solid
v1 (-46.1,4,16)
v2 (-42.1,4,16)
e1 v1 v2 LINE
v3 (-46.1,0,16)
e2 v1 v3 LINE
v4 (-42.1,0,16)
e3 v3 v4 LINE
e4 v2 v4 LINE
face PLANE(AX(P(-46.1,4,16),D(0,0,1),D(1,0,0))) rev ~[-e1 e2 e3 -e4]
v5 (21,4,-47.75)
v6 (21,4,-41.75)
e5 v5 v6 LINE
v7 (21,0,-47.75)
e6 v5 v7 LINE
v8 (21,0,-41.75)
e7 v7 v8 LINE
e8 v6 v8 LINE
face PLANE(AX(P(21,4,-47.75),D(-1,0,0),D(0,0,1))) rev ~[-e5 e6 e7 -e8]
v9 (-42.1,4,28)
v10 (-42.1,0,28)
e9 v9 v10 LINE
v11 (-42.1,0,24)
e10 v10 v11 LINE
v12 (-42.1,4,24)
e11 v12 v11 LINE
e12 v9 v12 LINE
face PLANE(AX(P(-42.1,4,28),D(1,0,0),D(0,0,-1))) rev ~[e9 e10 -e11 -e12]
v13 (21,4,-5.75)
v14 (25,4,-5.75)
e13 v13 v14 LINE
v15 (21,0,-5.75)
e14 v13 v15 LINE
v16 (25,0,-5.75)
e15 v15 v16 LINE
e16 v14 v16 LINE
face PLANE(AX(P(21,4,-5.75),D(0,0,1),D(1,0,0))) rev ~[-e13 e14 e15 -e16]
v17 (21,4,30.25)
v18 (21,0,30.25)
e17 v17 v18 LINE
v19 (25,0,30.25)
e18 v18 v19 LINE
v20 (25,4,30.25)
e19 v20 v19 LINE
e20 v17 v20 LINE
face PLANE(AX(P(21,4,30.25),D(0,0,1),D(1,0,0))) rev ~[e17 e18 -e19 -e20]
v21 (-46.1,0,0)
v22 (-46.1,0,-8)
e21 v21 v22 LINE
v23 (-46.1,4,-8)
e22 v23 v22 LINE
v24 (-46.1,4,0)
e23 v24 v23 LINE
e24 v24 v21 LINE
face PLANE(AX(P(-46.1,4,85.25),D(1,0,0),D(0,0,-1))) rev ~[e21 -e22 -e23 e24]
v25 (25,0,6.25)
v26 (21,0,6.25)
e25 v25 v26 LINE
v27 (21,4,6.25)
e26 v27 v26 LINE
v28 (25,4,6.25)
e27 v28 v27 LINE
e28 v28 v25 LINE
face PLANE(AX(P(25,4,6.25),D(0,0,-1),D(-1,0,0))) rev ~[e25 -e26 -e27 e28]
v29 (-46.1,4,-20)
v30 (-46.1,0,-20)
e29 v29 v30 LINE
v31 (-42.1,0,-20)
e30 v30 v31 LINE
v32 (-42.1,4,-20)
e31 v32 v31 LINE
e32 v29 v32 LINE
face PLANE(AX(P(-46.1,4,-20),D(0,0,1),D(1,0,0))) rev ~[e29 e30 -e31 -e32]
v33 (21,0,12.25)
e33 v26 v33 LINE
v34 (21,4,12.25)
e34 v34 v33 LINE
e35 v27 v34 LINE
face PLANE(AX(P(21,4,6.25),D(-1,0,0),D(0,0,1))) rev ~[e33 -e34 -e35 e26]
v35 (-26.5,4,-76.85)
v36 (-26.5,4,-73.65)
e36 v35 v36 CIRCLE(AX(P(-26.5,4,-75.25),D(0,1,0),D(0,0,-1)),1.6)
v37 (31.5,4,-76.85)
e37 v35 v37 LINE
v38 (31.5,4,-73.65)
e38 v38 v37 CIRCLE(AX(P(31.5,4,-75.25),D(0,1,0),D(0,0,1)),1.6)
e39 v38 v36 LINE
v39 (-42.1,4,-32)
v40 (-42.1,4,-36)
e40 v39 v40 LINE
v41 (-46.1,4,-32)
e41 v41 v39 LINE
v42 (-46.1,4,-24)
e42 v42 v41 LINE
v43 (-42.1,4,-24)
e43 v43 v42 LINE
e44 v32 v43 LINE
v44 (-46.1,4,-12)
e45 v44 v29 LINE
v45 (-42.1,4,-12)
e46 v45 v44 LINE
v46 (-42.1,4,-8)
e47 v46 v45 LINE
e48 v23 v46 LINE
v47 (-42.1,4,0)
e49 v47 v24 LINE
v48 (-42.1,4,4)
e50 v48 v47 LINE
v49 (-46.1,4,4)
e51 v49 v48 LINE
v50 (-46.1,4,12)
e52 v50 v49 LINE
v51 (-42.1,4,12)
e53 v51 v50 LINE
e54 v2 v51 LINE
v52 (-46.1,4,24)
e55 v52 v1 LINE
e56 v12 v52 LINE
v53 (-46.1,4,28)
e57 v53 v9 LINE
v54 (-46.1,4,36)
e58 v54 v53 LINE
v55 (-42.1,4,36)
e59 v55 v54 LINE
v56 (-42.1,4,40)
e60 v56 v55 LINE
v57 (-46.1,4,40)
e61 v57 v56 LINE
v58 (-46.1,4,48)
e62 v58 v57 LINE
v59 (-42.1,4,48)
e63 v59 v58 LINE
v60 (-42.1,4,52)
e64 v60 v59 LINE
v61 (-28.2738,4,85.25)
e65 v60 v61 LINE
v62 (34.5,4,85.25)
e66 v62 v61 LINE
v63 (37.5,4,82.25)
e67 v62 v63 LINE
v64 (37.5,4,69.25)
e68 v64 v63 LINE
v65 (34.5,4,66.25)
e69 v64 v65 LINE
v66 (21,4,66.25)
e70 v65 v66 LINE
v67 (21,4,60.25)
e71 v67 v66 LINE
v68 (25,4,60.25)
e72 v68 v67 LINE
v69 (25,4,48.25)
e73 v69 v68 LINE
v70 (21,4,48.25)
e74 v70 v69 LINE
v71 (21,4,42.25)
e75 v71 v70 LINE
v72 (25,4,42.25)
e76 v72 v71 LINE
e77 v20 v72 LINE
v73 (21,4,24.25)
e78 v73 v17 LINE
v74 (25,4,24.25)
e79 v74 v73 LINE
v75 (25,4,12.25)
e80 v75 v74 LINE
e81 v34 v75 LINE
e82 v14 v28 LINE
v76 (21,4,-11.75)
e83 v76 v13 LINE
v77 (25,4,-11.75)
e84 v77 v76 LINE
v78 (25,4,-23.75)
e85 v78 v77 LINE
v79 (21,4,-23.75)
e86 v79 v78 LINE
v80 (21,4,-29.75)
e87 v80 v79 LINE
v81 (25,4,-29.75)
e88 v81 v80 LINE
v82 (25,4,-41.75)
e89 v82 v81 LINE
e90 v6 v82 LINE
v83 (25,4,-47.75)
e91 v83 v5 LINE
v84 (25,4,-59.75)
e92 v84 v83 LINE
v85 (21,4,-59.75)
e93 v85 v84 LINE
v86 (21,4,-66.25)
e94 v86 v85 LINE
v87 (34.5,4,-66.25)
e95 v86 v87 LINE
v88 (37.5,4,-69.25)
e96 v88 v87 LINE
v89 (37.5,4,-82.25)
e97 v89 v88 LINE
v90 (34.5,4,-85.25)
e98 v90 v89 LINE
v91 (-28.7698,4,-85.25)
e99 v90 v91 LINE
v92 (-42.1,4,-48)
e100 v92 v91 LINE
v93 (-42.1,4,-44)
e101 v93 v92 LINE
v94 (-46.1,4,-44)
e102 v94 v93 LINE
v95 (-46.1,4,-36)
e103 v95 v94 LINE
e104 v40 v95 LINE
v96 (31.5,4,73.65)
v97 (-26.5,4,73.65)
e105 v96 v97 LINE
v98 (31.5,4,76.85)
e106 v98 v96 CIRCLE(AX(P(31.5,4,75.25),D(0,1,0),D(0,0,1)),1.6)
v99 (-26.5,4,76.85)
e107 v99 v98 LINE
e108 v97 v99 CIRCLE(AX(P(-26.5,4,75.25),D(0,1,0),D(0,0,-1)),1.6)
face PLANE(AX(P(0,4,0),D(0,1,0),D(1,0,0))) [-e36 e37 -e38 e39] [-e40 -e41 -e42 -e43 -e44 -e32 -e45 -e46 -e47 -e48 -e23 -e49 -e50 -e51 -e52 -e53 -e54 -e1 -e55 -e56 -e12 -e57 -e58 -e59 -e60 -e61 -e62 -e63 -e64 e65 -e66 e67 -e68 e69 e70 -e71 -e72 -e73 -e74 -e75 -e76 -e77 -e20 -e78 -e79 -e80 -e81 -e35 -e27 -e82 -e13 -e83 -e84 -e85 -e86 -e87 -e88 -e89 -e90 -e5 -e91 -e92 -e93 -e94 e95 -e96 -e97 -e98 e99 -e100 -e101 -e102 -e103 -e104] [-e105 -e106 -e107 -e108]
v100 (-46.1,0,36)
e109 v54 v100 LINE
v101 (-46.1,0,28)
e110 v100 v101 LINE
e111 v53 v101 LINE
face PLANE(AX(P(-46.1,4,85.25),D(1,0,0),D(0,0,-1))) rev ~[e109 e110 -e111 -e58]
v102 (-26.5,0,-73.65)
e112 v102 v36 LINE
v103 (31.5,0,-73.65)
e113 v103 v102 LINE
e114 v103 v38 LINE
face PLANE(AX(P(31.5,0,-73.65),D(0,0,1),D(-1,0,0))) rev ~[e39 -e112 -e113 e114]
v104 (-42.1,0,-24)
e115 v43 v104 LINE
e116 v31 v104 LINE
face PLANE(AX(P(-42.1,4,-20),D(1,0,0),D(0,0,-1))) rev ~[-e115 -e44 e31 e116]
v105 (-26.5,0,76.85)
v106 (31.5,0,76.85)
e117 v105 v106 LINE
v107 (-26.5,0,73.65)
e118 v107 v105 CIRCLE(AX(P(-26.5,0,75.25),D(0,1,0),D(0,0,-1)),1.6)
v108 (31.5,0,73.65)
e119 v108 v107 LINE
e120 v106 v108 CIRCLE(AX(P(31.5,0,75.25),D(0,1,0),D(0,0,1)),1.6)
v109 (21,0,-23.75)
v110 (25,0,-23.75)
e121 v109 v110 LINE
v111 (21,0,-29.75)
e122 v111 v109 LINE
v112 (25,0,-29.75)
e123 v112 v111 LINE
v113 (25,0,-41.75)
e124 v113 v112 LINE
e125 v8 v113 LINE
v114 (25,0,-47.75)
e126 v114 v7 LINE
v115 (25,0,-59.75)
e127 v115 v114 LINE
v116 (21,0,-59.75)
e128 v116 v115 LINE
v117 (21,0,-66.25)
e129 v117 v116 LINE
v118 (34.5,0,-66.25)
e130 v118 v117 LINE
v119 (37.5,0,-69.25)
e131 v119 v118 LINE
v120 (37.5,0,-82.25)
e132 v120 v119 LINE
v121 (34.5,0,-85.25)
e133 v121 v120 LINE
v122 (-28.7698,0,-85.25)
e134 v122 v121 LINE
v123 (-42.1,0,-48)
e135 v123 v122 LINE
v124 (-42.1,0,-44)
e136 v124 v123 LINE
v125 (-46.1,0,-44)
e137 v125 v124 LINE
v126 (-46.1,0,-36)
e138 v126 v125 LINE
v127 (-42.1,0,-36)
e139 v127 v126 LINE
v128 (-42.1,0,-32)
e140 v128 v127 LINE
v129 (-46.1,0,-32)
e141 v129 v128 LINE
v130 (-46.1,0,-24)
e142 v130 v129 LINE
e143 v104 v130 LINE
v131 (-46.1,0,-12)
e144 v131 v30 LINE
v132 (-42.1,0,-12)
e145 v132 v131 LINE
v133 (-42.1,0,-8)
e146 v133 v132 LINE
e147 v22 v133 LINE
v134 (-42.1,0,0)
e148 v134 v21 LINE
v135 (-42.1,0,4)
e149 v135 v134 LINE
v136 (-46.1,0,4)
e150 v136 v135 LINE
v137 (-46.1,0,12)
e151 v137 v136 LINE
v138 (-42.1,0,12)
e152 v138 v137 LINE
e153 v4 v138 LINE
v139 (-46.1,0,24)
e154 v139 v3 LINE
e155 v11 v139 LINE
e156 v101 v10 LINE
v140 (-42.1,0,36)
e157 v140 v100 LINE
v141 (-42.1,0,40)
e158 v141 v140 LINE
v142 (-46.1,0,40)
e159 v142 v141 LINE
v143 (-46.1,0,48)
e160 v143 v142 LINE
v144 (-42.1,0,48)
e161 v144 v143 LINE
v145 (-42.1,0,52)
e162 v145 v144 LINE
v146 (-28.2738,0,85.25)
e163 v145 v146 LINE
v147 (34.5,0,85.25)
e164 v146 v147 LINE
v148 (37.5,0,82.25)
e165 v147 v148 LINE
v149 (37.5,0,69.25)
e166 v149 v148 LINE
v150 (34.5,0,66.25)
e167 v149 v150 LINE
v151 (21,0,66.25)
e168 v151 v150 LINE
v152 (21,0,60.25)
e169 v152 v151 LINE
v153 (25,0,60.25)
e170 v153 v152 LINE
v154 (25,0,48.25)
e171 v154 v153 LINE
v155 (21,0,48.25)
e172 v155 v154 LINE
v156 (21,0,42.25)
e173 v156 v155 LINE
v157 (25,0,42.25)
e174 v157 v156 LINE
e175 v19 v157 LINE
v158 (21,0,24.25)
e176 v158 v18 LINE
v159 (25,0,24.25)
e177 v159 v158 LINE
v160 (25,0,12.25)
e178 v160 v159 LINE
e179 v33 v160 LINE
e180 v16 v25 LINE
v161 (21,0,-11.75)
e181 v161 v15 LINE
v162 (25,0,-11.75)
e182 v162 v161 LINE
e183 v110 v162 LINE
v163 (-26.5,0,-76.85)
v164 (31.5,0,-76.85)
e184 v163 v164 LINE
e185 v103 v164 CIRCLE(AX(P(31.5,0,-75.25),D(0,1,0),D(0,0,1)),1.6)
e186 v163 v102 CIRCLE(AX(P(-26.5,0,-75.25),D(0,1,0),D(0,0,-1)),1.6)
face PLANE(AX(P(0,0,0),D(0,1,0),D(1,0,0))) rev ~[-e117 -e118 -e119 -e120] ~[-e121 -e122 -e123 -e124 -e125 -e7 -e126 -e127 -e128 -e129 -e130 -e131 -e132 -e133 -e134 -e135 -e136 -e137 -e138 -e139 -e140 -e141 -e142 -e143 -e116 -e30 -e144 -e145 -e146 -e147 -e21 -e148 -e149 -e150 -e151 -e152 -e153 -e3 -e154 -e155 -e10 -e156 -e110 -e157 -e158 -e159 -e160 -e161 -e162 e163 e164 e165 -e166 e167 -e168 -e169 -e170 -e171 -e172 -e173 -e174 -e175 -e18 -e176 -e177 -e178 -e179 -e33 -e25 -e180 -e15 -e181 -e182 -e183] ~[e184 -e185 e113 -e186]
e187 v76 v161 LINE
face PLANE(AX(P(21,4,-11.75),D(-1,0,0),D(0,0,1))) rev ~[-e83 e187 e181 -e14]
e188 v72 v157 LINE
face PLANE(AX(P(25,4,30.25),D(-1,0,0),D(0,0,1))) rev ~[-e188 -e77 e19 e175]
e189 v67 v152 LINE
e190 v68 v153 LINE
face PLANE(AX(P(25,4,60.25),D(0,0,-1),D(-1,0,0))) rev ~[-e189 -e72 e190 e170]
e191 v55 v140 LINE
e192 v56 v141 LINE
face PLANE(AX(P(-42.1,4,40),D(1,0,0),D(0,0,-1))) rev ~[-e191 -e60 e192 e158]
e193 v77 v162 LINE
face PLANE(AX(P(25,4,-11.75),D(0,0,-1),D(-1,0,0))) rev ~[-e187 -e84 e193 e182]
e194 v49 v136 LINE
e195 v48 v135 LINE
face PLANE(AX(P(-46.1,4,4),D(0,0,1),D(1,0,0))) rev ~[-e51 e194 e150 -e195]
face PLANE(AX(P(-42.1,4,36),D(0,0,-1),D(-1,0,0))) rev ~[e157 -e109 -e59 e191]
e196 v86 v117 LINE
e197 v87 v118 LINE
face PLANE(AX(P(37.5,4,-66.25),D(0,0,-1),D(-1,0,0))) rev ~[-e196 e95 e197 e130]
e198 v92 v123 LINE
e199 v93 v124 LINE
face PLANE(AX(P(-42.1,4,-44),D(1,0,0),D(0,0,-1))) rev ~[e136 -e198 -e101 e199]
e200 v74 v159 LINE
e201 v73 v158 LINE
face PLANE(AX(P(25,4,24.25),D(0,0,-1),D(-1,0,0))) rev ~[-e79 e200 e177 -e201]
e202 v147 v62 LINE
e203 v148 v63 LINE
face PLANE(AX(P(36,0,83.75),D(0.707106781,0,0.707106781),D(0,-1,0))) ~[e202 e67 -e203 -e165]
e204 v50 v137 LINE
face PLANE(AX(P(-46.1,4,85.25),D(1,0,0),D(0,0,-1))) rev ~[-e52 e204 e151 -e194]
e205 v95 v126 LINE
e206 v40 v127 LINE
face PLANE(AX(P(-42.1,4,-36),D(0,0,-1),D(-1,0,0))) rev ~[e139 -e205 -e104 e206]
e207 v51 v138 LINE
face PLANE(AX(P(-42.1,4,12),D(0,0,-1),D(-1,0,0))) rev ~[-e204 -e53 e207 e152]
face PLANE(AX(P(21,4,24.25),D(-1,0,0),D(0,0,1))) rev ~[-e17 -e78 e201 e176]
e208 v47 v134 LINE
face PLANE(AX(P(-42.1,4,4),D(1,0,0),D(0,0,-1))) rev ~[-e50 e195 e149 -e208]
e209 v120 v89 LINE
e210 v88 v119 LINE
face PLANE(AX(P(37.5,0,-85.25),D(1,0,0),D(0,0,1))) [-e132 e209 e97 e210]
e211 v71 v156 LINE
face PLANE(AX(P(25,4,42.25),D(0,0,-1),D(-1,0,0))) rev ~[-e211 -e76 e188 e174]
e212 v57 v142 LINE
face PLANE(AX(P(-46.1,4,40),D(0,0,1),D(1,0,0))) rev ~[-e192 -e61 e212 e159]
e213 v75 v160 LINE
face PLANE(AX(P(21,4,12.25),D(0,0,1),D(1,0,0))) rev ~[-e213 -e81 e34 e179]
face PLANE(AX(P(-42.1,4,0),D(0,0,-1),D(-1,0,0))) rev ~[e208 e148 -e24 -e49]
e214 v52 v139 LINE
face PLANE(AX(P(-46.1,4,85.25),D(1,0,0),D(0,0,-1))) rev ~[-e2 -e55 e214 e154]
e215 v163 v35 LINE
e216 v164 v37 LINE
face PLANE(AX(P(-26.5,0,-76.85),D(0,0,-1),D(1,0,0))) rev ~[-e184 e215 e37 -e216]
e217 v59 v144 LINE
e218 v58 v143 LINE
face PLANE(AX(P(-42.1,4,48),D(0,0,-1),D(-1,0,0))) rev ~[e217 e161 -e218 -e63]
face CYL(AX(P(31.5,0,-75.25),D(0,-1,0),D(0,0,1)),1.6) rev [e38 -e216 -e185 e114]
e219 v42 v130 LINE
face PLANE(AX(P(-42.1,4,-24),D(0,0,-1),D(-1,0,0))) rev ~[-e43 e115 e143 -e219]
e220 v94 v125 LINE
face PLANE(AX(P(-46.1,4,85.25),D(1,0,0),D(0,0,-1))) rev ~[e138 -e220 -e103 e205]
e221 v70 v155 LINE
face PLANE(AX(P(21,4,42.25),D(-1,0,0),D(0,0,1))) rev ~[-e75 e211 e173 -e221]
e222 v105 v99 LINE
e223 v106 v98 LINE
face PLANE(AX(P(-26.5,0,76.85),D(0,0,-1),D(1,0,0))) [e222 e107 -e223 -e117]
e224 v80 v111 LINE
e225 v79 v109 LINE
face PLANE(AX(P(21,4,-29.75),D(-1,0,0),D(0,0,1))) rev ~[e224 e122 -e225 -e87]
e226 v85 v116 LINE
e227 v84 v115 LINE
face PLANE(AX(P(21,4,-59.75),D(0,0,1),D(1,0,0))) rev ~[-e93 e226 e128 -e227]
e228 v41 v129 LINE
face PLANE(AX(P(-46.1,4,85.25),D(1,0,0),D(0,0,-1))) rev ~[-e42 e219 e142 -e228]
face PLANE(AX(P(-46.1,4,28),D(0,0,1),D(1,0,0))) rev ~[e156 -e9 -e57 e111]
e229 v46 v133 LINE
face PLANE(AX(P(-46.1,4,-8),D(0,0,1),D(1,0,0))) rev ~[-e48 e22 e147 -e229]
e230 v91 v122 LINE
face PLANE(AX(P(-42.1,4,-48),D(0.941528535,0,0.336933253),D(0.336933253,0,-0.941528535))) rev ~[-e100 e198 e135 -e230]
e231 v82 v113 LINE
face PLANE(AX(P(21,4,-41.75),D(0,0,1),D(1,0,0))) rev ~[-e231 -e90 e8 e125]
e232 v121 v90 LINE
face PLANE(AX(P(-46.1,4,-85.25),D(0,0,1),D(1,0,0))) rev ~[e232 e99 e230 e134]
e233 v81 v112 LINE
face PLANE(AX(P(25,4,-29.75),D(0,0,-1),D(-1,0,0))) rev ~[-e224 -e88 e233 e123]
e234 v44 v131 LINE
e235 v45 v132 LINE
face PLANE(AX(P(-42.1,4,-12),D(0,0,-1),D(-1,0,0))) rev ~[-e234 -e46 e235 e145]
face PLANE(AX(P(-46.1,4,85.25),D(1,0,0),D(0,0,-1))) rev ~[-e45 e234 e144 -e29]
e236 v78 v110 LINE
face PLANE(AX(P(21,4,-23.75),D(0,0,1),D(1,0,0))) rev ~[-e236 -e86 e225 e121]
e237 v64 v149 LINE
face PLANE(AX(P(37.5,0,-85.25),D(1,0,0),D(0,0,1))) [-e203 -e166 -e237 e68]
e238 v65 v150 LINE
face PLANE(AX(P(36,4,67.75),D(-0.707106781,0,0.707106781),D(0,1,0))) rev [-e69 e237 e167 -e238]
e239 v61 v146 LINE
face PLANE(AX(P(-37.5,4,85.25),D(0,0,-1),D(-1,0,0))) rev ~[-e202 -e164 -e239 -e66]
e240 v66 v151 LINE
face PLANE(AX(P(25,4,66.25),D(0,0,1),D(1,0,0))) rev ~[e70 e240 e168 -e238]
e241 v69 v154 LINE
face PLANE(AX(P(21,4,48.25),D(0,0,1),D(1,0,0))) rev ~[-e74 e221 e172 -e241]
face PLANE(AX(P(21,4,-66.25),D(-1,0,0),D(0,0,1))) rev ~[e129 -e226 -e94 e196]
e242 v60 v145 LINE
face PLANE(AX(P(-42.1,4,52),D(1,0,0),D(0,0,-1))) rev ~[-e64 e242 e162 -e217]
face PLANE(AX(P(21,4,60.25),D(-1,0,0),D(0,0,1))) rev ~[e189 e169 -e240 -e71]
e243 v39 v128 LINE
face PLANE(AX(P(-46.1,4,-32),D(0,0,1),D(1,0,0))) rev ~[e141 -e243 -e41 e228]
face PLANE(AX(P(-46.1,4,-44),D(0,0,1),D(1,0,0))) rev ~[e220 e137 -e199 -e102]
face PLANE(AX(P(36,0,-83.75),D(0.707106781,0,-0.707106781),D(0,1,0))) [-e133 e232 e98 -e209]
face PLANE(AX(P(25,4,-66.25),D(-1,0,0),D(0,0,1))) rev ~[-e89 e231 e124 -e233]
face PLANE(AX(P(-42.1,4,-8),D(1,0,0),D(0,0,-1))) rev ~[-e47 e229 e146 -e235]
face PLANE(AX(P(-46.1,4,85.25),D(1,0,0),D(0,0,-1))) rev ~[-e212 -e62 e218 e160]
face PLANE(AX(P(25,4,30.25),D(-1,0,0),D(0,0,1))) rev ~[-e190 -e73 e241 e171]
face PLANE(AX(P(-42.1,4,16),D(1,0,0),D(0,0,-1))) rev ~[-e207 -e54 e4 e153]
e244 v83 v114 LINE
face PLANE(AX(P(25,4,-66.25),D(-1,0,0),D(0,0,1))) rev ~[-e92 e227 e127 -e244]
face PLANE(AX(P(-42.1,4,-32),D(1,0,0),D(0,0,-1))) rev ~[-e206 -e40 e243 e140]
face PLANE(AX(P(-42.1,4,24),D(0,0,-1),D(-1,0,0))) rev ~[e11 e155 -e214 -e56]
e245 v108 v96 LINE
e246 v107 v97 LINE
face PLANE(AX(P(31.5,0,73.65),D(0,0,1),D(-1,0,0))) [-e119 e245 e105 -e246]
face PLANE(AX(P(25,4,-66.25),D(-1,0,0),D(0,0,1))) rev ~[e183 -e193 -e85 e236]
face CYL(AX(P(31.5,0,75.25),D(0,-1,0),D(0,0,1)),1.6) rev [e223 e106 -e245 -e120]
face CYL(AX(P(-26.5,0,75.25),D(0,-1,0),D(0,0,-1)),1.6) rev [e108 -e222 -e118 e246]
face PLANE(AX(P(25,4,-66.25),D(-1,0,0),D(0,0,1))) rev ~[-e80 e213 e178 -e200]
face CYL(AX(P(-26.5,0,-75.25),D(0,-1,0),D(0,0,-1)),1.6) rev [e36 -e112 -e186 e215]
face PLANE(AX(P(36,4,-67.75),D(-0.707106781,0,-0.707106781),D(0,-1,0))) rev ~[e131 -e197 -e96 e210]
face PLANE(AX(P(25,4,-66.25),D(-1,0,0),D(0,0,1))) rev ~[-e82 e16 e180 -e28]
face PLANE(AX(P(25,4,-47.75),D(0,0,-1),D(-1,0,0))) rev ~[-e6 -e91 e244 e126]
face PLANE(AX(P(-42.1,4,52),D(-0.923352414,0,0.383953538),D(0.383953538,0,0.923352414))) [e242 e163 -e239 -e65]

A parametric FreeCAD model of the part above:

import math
import FreeCAD as App
import Part
import Sketcher

V = App.Vector
Q = App.Units.Quantity


def edges_at(feature, points):
    """Names of the edges that pass closest to the given points."""
    edges = feature.Shape.Edges
    near = lambda p: min(range(len(edges)), key=lambda i: edges[i].distToShape(Part.Vertex(*p))[0])
    return sorted({f"Edge{near(p) + 1}" for p in points})


def add_polygon(sketch, points):
    """Adds a closed chain of lines whose ends are joined by coincident constraints."""
    first, n = sketch.GeometryCount, len(points)
    for a, b in zip(points, points[1:] + points[:1]):
        sketch.addGeometry(Part.LineSegment(App.Vector(*a, 0), App.Vector(*b, 0)), False)
    for i in range(n):
        sketch.addConstraint(Sketcher.Constraint("Coincident", first + i, 2, first + (i + 1) % n, 1))

doc = App.newDocument("Part")
params = doc.addObject("Spreadsheet::Sheet", "Params")
for row, (alias, value) in enumerate([
    ("sketch1_radius", "1.6 mm"),
    ("sketch1_width", "75 mm"),
    ("sketch1_height", "170.5 mm"),
    ("sketch1_width2", "58 mm"),
    ("pad1_length", "4 mm"),
    ("sketch2_width", "4 mm"),
    ("sketch2_height", "6 mm"),
    ("sketch2_height2", "6.5 mm"),
    ("pocket1_length", "10 mm"),
    ("sketch3_width", "12.5 mm"),
    ("sketch3_height", "132.5 mm"),
    ("pocket2_length", "10 mm"),
    ("chamfer_size", "3 mm"),
    ("sketch4_width", "8.6 mm"),
    ("sketch4_height", "170.5 mm"),
    ("pad2_length", "4 mm"),
    ("sketch5_width", "4 mm"),
    ("pocket3_length", "4 mm"),
    ("sketch6_width", "4 mm"),
    ("sketch6_height", "33.25 mm"),
    ("sketch6_length", "36.01 mm"),
    ("pocket4_length", "4 mm"),
], start=1):
    params.set(f"A{row}", alias)
    params.set(f"B{row}", "=" + value)
    params.setAlias(f"B{row}", alias)

body = doc.addObject("PartDesign::Body", "Body")

sketch1 = body.newObject("Sketcher::SketchObject", "Sketch")
sketch1.AttachmentSupport = (doc.getObject("XZ_Plane"), [""])
sketch1.MapMode = "FlatFace"
add_polygon(sketch1, [(-37.5, 85.2), (37.5, 85.2), (37.5, -85.2), (-37.5, -85.2)])
sketch1.addGeometry(Part.ArcOfCircle(Part.Circle(V(-26.5, -75.2, 0), V(0, 0, 1), 1.6), math.radians(90), math.radians(270)), False)
sketch1.addGeometry(Part.LineSegment(V(-26.5, -76.8, 0), V(31.5, -76.8, 0)), False)
sketch1.addGeometry(Part.ArcOfCircle(Part.Circle(V(31.5, -75.2, 0), V(0, 0, 1), 1.6), math.radians(-90), math.radians(90)), False)
sketch1.addGeometry(Part.LineSegment(V(31.5, -73.7, 0), V(-26.5, -73.7, 0)), False)
sketch1.addGeometry(Part.LineSegment(V(31.5, 76.8, 0), V(-26.5, 76.8, 0)), False)
sketch1.addGeometry(Part.ArcOfCircle(Part.Circle(V(-26.5, 75.2, 0), V(0, 0, 1), 1.6), math.radians(90), math.radians(270)), False)
sketch1.addGeometry(Part.LineSegment(V(-26.5, 73.7, 0), V(31.5, 73.7, 0)), False)
sketch1.addGeometry(Part.ArcOfCircle(Part.Circle(V(31.5, 75.2, 0), V(0, 0, 1), 1.6), math.radians(-90), math.radians(90)), False)
sketch1.addConstraint(Sketcher.Constraint("Tangent", 4, 2, 5, 1))
sketch1.addConstraint(Sketcher.Constraint("Tangent", 5, 2, 6, 1))
sketch1.addConstraint(Sketcher.Constraint("Tangent", 6, 2, 7, 1))
sketch1.addConstraint(Sketcher.Constraint("Tangent", 7, 2, 4, 1))
sketch1.addConstraint(Sketcher.Constraint("Tangent", 8, 2, 9, 1))
sketch1.addConstraint(Sketcher.Constraint("Tangent", 9, 2, 10, 1))
sketch1.addConstraint(Sketcher.Constraint("Tangent", 10, 2, 11, 1))
sketch1.addConstraint(Sketcher.Constraint("Tangent", 11, 2, 8, 1))
sketch1.addConstraint(Sketcher.Constraint("Horizontal", 0))
sketch1.addConstraint(Sketcher.Constraint("Vertical", 1))
sketch1.addConstraint(Sketcher.Constraint("Horizontal", 2))
sketch1.addConstraint(Sketcher.Constraint("Vertical", 3))
sketch1.addConstraint(Sketcher.Constraint("Horizontal", 5))
sketch1.addConstraint(Sketcher.Constraint("Horizontal", 7))
sketch1.addConstraint(Sketcher.Constraint("Horizontal", 8))
sketch1.addConstraint(Sketcher.Constraint("Horizontal", 10))
sketch1.addConstraint(Sketcher.Constraint("Equal", 6, 9))
sketch1.addConstraint(Sketcher.Constraint("Symmetric", 0, 2, 2, 2, -1, 1))
sketch1.addConstraint(Sketcher.Constraint("Symmetric", 4, 3, 9, 3, -1))
sketch1.addConstraint(Sketcher.Constraint("Vertical", 6, 3, 11, 3))
sketch1.addConstraint(Sketcher.Constraint("Radius", 4, Q("1.6 mm")))
sketch1.addConstraint(Sketcher.Constraint("DistanceX", 0, 1, 0, 2, Q("75 mm")))
sketch1.addConstraint(Sketcher.Constraint("DistanceY", 1, 2, 1, 1, Q("170.5 mm")))
sketch1.addConstraint(Sketcher.Constraint("DistanceX", 11, 3, 0, 2, Q("6 mm")))
sketch1.addConstraint(Sketcher.Constraint("DistanceY", 11, 3, 0, 2, Q("10 mm")))
sketch1.addConstraint(Sketcher.Constraint("DistanceX", 5, 1, 5, 2, Q("58 mm")))
sketch1.setExpression("Constraints[24]", "Params.sketch1_radius")
sketch1.setExpression("Constraints[25]", "Params.sketch1_width")
sketch1.setExpression("Constraints[26]", "Params.sketch1_height")
sketch1.setExpression("Constraints[29]", "Params.sketch1_width2")
pad1 = body.newObject("PartDesign::Pad", "Pad")
pad1.Profile = sketch1
pad1.setExpression("Length", "Params.pad1_length")
pad1.Reversed = True

sketch2 = body.newObject("Sketcher::SketchObject", "Sketch001")
sketch2.AttachmentSupport = (doc.getObject("XZ_Plane"), [""])
sketch2.MapMode = "FlatFace"
sketch2.AttachmentOffset = App.Placement(V(0, 0, -4), App.Rotation())
add_polygon(sketch2, [(21, 60.2), (21, 66.2), (25, 66.2), (25, 60.2)])
add_polygon(sketch2, [(21, 42.2), (21, 48.2), (25, 48.2), (25, 42.2)])
add_polygon(sketch2, [(21, 24.2), (21, 30.2), (25, 30.2), (25, 24.2)])
add_polygon(sketch2, [(21, 6.2), (21, 12.2), (25, 12.2), (25, 6.2)])
add_polygon(sketch2, [(21, -11.8), (21, -5.8), (25, -5.8), (25, -11.8)])
add_polygon(sketch2, [(21, -29.8), (21, -23.8), (25, -23.8), (25, -29.8)])
add_polygon(sketch2, [(21, -47.8), (21, -41.8), (25, -41.8), (25, -47.8)])
add_polygon(sketch2, [(21, -66.2), (21, -59.8), (25, -59.8), (25, -66.2)])
sketch2.addConstraint(Sketcher.Constraint("Vertical", 0))
sketch2.addConstraint(Sketcher.Constraint("Horizontal", 1))
sketch2.addConstraint(Sketcher.Constraint("Vertical", 2))
sketch2.addConstraint(Sketcher.Constraint("Horizontal", 3))
sketch2.addConstraint(Sketcher.Constraint("Vertical", 4))
sketch2.addConstraint(Sketcher.Constraint("Horizontal", 5))
sketch2.addConstraint(Sketcher.Constraint("Vertical", 6))
sketch2.addConstraint(Sketcher.Constraint("Horizontal", 7))
sketch2.addConstraint(Sketcher.Constraint("Vertical", 8))
sketch2.addConstraint(Sketcher.Constraint("Horizontal", 9))
sketch2.addConstraint(Sketcher.Constraint("Vertical", 10))
sketch2.addConstraint(Sketcher.Constraint("Horizontal", 11))
sketch2.addConstraint(Sketcher.Constraint("Vertical", 12))
sketch2.addConstraint(Sketcher.Constraint("Horizontal", 13))
sketch2.addConstraint(Sketcher.Constraint("Vertical", 14))
sketch2.addConstraint(Sketcher.Constraint("Horizontal", 15))
sketch2.addConstraint(Sketcher.Constraint("Vertical", 16))
sketch2.addConstraint(Sketcher.Constraint("Horizontal", 17))
sketch2.addConstraint(Sketcher.Constraint("Vertical", 18))
sketch2.addConstraint(Sketcher.Constraint("Horizontal", 19))
sketch2.addConstraint(Sketcher.Constraint("Vertical", 20))
sketch2.addConstraint(Sketcher.Constraint("Horizontal", 21))
sketch2.addConstraint(Sketcher.Constraint("Vertical", 22))
sketch2.addConstraint(Sketcher.Constraint("Horizontal", 23))
sketch2.addConstraint(Sketcher.Constraint("Vertical", 24))
sketch2.addConstraint(Sketcher.Constraint("Horizontal", 25))
sketch2.addConstraint(Sketcher.Constraint("Vertical", 26))
sketch2.addConstraint(Sketcher.Constraint("Horizontal", 27))
sketch2.addConstraint(Sketcher.Constraint("Vertical", 28))
sketch2.addConstraint(Sketcher.Constraint("Horizontal", 29))
sketch2.addConstraint(Sketcher.Constraint("Vertical", 30))
sketch2.addConstraint(Sketcher.Constraint("Horizontal", 31))
sketch2.addConstraint(Sketcher.Constraint("Symmetric", 1, 2, 30, 2, -1))
sketch2.addConstraint(Sketcher.Constraint("Vertical", 3, 2, 4, 2))
sketch2.addConstraint(Sketcher.Constraint("Vertical", 2, 2, 5, 2))
sketch2.addConstraint(Sketcher.Constraint("Vertical", 7, 2, 8, 2))
sketch2.addConstraint(Sketcher.Constraint("Vertical", 6, 2, 9, 2))
sketch2.addConstraint(Sketcher.Constraint("Vertical", 11, 2, 12, 2))
sketch2.addConstraint(Sketcher.Constraint("Vertical", 10, 2, 13, 2))
sketch2.addConstraint(Sketcher.Constraint("Vertical", 15, 2, 16, 2))
sketch2.addConstraint(Sketcher.Constraint("Vertical", 14, 2, 17, 2))
sketch2.addConstraint(Sketcher.Constraint("Vertical", 19, 2, 20, 2))
sketch2.addConstraint(Sketcher.Constraint("Vertical", 18, 2, 21, 2))
sketch2.addConstraint(Sketcher.Constraint("Vertical", 23, 2, 24, 2))
sketch2.addConstraint(Sketcher.Constraint("Vertical", 22, 2, 25, 2))
sketch2.addConstraint(Sketcher.Constraint("Vertical", 27, 2, 28, 2))
sketch2.addConstraint(Sketcher.Constraint("Equal", 2, 4))
sketch2.addConstraint(Sketcher.Constraint("Equal", 6, 8))
sketch2.addConstraint(Sketcher.Constraint("Equal", 10, 12))
sketch2.addConstraint(Sketcher.Constraint("Equal", 14, 16))
sketch2.addConstraint(Sketcher.Constraint("Equal", 18, 20))
sketch2.addConstraint(Sketcher.Constraint("Equal", 22, 24))
sketch2.addConstraint(Sketcher.Constraint("DistanceX", 1, 1, 1, 2, Q("4 mm")))
sketch2.addConstraint(Sketcher.Constraint("DistanceY", 0, 1, 0, 2, Q("6 mm")))
sketch2.addConstraint(Sketcher.Constraint("DistanceY", 28, 1, 28, 2, Q("6.5 mm")))
sketch2.addConstraint(Sketcher.Constraint("DistanceY", 4, 2, 3, 2, Q("12 mm")))
sketch2.addConstraint(Sketcher.Constraint("DistanceY", 8, 2, 7, 2, Q("12 mm")))
sketch2.addConstraint(Sketcher.Constraint("DistanceY", 12, 2, 11, 2, Q("12 mm")))
sketch2.addConstraint(Sketcher.Constraint("DistanceY", 16, 2, 15, 2, Q("12 mm")))
sketch2.addConstraint(Sketcher.Constraint("DistanceY", 20, 2, 19, 2, Q("12 mm")))
sketch2.addConstraint(Sketcher.Constraint("DistanceY", 24, 2, 23, 2, Q("12 mm")))
sketch2.addConstraint(Sketcher.Constraint("DistanceY", 28, 2, 27, 2, Q("12 mm")))
sketch2.addConstraint(Sketcher.Constraint("DistanceX", -1, 1, 0, 2, Q("21 mm")))
sketch2.setExpression("Constraints[84]", "Params.sketch2_width")
sketch2.setExpression("Constraints[85]", "Params.sketch2_height")
sketch2.setExpression("Constraints[86]", "Params.sketch2_height2")
pocket1 = body.newObject("PartDesign::Pocket", "Pocket")
pocket1.Profile = sketch2
pocket1.setExpression("Length", "Params.pocket1_length")
pocket1.Reversed = True

sketch3 = body.newObject("Sketcher::SketchObject", "Sketch002")
sketch3.AttachmentSupport = (doc.getObject("XZ_Plane"), [""])
sketch3.MapMode = "FlatFace"
sketch3.AttachmentOffset = App.Placement(V(0, 0, -4), App.Rotation())
add_polygon(sketch3, [(25, 66), (38, 66), (38, -66), (25, -66)])
sketch3.addConstraint(Sketcher.Constraint("Horizontal", 0))
sketch3.addConstraint(Sketcher.Constraint("Vertical", 1))
sketch3.addConstraint(Sketcher.Constraint("Horizontal", 2))
sketch3.addConstraint(Sketcher.Constraint("Vertical", 3))
sketch3.addConstraint(Sketcher.Constraint("DistanceX", 0, 1, 0, 2, Q("12.5 mm")))
sketch3.addConstraint(Sketcher.Constraint("DistanceY", 1, 2, 1, 1, Q("132.5 mm")))
sketch3.addConstraint(Sketcher.Constraint("DistanceX", -1, 1, 2, 2, Q("25 mm")))
sketch3.addConstraint(Sketcher.Constraint("DistanceY", -1, 1, 0, 2, Q("66.25 mm")))
sketch3.setExpression("Constraints[8]", "Params.sketch3_width")
sketch3.setExpression("Constraints[9]", "Params.sketch3_height")
pocket2 = body.newObject("PartDesign::Pocket", "Pocket001")
pocket2.Profile = sketch3
pocket2.setExpression("Length", "Params.pocket2_length")
pocket2.Reversed = True
doc.recompute()

chamfer = body.newObject("PartDesign::Chamfer", "Chamfer")
chamfer.Base = (pocket2, edges_at(pocket2, [
    (37.5, 2, 66.25),
    (37.5, 2, -66.25),
    (37.5, 2, -85.25),
    (37.5, 2, 85.25),
]))
chamfer.setExpression("Size", "Params.chamfer_size")

sketch4 = body.newObject("Sketcher::SketchObject", "Sketch003")
sketch4.AttachmentSupport = (doc.getObject("XZ_Plane"), [""])
sketch4.MapMode = "FlatFace"
sketch4.AttachmentOffset = App.Placement(V(0, 0, -4), App.Rotation())
add_polygon(sketch4, [(-38, 85), (-38, -85), (-46, -85), (-46, 85)])
sketch4.addConstraint(Sketcher.Constraint("Vertical", 0))
sketch4.addConstraint(Sketcher.Constraint("Horizontal", 1))
sketch4.addConstraint(Sketcher.Constraint("Vertical", 2))
sketch4.addConstraint(Sketcher.Constraint("Horizontal", 3))
sketch4.addConstraint(Sketcher.Constraint("DistanceX", 1, 2, 1, 1, Q("8.6 mm")))
sketch4.addConstraint(Sketcher.Constraint("DistanceY", 0, 2, 0, 1, Q("170.5 mm")))
sketch4.addConstraint(Sketcher.Constraint("DistanceX", 0, 2, -1, 1, Q("37.5 mm")))
sketch4.addConstraint(Sketcher.Constraint("DistanceY", 0, 2, -1, 1, Q("85.25 mm")))
sketch4.setExpression("Constraints[8]", "Params.sketch4_width")
sketch4.setExpression("Constraints[9]", "Params.sketch4_height")
pad2 = body.newObject("PartDesign::Pad", "Pad001")
pad2.Profile = sketch4
pad2.setExpression("Length", "Params.pad2_length")

sketch5 = body.newObject("Sketcher::SketchObject", "Sketch004")
sketch5.AttachmentSupport = (doc.getObject("XZ_Plane"), [""])
sketch5.MapMode = "FlatFace"
sketch5.AttachmentOffset = App.Placement(V(0, 0, -4), App.Rotation())
add_polygon(sketch5, [(-42.1, 52), (-42.1, 48), (-46.1, 48), (-46.1, 52)])
add_polygon(sketch5, [(-46.1, 40), (-42.1, 40), (-42.1, 36), (-46.1, 36)])
add_polygon(sketch5, [(-46.1, 28), (-42.1, 28), (-42.1, 24), (-46.1, 24)])
add_polygon(sketch5, [(-46.1, 16), (-42.1, 16), (-42.1, 12), (-46.1, 12)])
add_polygon(sketch5, [(-46.1, 4), (-42.1, 4), (-42.1, 0), (-46.1, 0)])
add_polygon(sketch5, [(-46.1, -8), (-42.1, -8), (-42.1, -12), (-46.1, -12)])
add_polygon(sketch5, [(-46.1, -20), (-42.1, -20), (-42.1, -24), (-46.1, -24)])
add_polygon(sketch5, [(-46.1, -32), (-42.1, -32), (-42.1, -36), (-46.1, -36)])
add_polygon(sketch5, [(-46.1, -44), (-42.1, -44), (-42.1, -48), (-46.1, -48)])
sketch5.addConstraint(Sketcher.Constraint("Vertical", 0))
sketch5.addConstraint(Sketcher.Constraint("Horizontal", 1))
sketch5.addConstraint(Sketcher.Constraint("Vertical", 2))
sketch5.addConstraint(Sketcher.Constraint("Horizontal", 3))
sketch5.addConstraint(Sketcher.Constraint("Horizontal", 4))
sketch5.addConstraint(Sketcher.Constraint("Vertical", 5))
sketch5.addConstraint(Sketcher.Constraint("Horizontal", 6))
sketch5.addConstraint(Sketcher.Constraint("Vertical", 7))
sketch5.addConstraint(Sketcher.Constraint("Horizontal", 8))
sketch5.addConstraint(Sketcher.Constraint("Vertical", 9))
sketch5.addConstraint(Sketcher.Constraint("Horizontal", 10))
sketch5.addConstraint(Sketcher.Constraint("Vertical", 11))
sketch5.addConstraint(Sketcher.Constraint("Horizontal", 12))
sketch5.addConstraint(Sketcher.Constraint("Vertical", 13))
sketch5.addConstraint(Sketcher.Constraint("Horizontal", 14))
sketch5.addConstraint(Sketcher.Constraint("Vertical", 15))
sketch5.addConstraint(Sketcher.Constraint("Horizontal", 16))
sketch5.addConstraint(Sketcher.Constraint("Vertical", 17))
sketch5.addConstraint(Sketcher.Constraint("Horizontal", 18))
sketch5.addConstraint(Sketcher.Constraint("Vertical", 19))
sketch5.addConstraint(Sketcher.Constraint("Horizontal", 20))
sketch5.addConstraint(Sketcher.Constraint("Vertical", 21))
sketch5.addConstraint(Sketcher.Constraint("Horizontal", 22))
sketch5.addConstraint(Sketcher.Constraint("Vertical", 23))
sketch5.addConstraint(Sketcher.Constraint("Horizontal", 24))
sketch5.addConstraint(Sketcher.Constraint("Vertical", 25))
sketch5.addConstraint(Sketcher.Constraint("Horizontal", 26))
sketch5.addConstraint(Sketcher.Constraint("Vertical", 27))
sketch5.addConstraint(Sketcher.Constraint("Horizontal", 28))
sketch5.addConstraint(Sketcher.Constraint("Vertical", 29))
sketch5.addConstraint(Sketcher.Constraint("Horizontal", 30))
sketch5.addConstraint(Sketcher.Constraint("Vertical", 31))
sketch5.addConstraint(Sketcher.Constraint("Horizontal", 32))
sketch5.addConstraint(Sketcher.Constraint("Vertical", 33))
sketch5.addConstraint(Sketcher.Constraint("Horizontal", 34))
sketch5.addConstraint(Sketcher.Constraint("Vertical", 35))
sketch5.addConstraint(Sketcher.Constraint("Symmetric", 13, 2, 21, 2, -1))
sketch5.addConstraint(Sketcher.Constraint("Symmetric", 9, 2, 25, 2, -1))
sketch5.addConstraint(Sketcher.Constraint("Symmetric", 5, 2, 29, 2, -1))
sketch5.addConstraint(Sketcher.Constraint("Symmetric", 0, 2, 33, 2, -1))
sketch5.addConstraint(Sketcher.Constraint("PointOnObject", 17, 2, -1))
sketch5.addConstraint(Sketcher.Constraint("Vertical", 3, 2, 4, 2))
sketch5.addConstraint(Sketcher.Constraint("Vertical", 2, 2, 6, 2))
sketch5.addConstraint(Sketcher.Constraint("Vertical", 5, 2, 8, 2))
sketch5.addConstraint(Sketcher.Constraint("Vertical", 7, 2, 10, 2))
sketch5.addConstraint(Sketcher.Constraint("Vertical", 9, 2, 12, 2))
sketch5.addConstraint(Sketcher.Constraint("Vertical", 11, 2, 14, 2))
sketch5.addConstraint(Sketcher.Constraint("Vertical", 13, 2, 16, 2))
sketch5.addConstraint(Sketcher.Constraint("Vertical", 15, 2, 18, 2))
sketch5.addConstraint(Sketcher.Constraint("Vertical", 19, 2, 22, 2))
sketch5.addConstraint(Sketcher.Constraint("Vertical", 23, 2, 26, 2))
sketch5.addConstraint(Sketcher.Constraint("Vertical", 27, 2, 30, 2))
sketch5.addConstraint(Sketcher.Constraint("Vertical", 31, 2, 34, 2))
sketch5.addConstraint(Sketcher.Constraint("Equal", 34, 0))
sketch5.addConstraint(Sketcher.Constraint("Equal", 2, 5))
sketch5.addConstraint(Sketcher.Constraint("Equal", 7, 9))
sketch5.addConstraint(Sketcher.Constraint("Equal", 11, 13))
sketch5.addConstraint(Sketcher.Constraint("Equal", 15, 17))
sketch5.addConstraint(Sketcher.Constraint("Equal", 19, 21))
sketch5.addConstraint(Sketcher.Constraint("Equal", 23, 25))
sketch5.addConstraint(Sketcher.Constraint("Equal", 27, 29))
sketch5.addConstraint(Sketcher.Constraint("Equal", 31, 33))
sketch5.addConstraint(Sketcher.Constraint("DistanceX", 1, 2, 1, 1, Q("4 mm")))
sketch5.addConstraint(Sketcher.Constraint("DistanceY", -1, 1, 13, 2, Q("12 mm")))
sketch5.addConstraint(Sketcher.Constraint("DistanceY", 4, 2, 0, 2, Q("8 mm")))
sketch5.addConstraint(Sketcher.Constraint("DistanceY", 8, 2, 5, 2, Q("8 mm")))
sketch5.addConstraint(Sketcher.Constraint("DistanceY", 12, 2, 9, 2, Q("8 mm")))
sketch5.addConstraint(Sketcher.Constraint("DistanceX", 0, 2, -1, 1, Q("42.1 mm")))
sketch5.setExpression("Constraints[98]", "Params.sketch5_width")
pocket3 = body.newObject("PartDesign::Pocket", "Pocket002")
pocket3.Profile = sketch5
pocket3.setExpression("Length", "Params.pocket3_length")
pocket3.Reversed = True

sketch6 = body.newObject("Sketcher::SketchObject", "Sketch005")
sketch6.AttachmentSupport = (doc.getObject("XZ_Plane"), [""])
sketch6.MapMode = "FlatFace"
sketch6.AttachmentOffset = App.Placement(V(0, 0, -4), App.Rotation())
add_polygon(sketch6, [(-28.3, 85.2), (-42.1, 52), (-46.1, 52), (-46.1, 85.2)])
add_polygon(sketch6, [(-46.1, -48), (-42.1, -48), (-28.8, -85.2), (-46.1, -85.2)])
sketch6.addConstraint(Sketcher.Constraint("Horizontal", 1))
sketch6.addConstraint(Sketcher.Constraint("Vertical", 2))
sketch6.addConstraint(Sketcher.Constraint("Horizontal", 3))
sketch6.addConstraint(Sketcher.Constraint("Horizontal", 4))
sketch6.addConstraint(Sketcher.Constraint("Horizontal", 6))
sketch6.addConstraint(Sketcher.Constraint("Vertical", 7))
sketch6.addConstraint(Sketcher.Constraint("Symmetric", 2, 2, 6, 2, -1))
sketch6.addConstraint(Sketcher.Constraint("Vertical", 0, 2, 4, 2))
sketch6.addConstraint(Sketcher.Constraint("DistanceX", 1, 2, 1, 1, Q("4 mm")))
sketch6.addConstraint(Sketcher.Constraint("DistanceY", -1, 1, 0, 2, Q("52 mm")))
sketch6.addConstraint(Sketcher.Constraint("DistanceY", 4, 2, -1, 1, Q("48 mm")))
sketch6.addConstraint(Sketcher.Constraint("DistanceY", 2, 1, 2, 2, Q("33.25 mm")))
sketch6.addConstraint(Sketcher.Constraint("DistanceX", 0, 2, -1, 1, Q("42.1 mm")))
sketch6.addConstraint(Sketcher.Constraint("Angle", 5, Q("-70.3099 deg")))
sketch6.addConstraint(Sketcher.Constraint("Distance", 0, Q("36.01 mm")))
sketch6.setExpression("Constraints[16]", "Params.sketch6_width")
sketch6.setExpression("Constraints[19]", "Params.sketch6_height")
sketch6.setExpression("Constraints[22]", "Params.sketch6_length")
pocket4 = body.newObject("PartDesign::Pocket", "Pocket003")
pocket4.Profile = sketch6
pocket4.setExpression("Length", "Params.pocket4_length")
pocket4.Reversed = True

doc.recompute()
